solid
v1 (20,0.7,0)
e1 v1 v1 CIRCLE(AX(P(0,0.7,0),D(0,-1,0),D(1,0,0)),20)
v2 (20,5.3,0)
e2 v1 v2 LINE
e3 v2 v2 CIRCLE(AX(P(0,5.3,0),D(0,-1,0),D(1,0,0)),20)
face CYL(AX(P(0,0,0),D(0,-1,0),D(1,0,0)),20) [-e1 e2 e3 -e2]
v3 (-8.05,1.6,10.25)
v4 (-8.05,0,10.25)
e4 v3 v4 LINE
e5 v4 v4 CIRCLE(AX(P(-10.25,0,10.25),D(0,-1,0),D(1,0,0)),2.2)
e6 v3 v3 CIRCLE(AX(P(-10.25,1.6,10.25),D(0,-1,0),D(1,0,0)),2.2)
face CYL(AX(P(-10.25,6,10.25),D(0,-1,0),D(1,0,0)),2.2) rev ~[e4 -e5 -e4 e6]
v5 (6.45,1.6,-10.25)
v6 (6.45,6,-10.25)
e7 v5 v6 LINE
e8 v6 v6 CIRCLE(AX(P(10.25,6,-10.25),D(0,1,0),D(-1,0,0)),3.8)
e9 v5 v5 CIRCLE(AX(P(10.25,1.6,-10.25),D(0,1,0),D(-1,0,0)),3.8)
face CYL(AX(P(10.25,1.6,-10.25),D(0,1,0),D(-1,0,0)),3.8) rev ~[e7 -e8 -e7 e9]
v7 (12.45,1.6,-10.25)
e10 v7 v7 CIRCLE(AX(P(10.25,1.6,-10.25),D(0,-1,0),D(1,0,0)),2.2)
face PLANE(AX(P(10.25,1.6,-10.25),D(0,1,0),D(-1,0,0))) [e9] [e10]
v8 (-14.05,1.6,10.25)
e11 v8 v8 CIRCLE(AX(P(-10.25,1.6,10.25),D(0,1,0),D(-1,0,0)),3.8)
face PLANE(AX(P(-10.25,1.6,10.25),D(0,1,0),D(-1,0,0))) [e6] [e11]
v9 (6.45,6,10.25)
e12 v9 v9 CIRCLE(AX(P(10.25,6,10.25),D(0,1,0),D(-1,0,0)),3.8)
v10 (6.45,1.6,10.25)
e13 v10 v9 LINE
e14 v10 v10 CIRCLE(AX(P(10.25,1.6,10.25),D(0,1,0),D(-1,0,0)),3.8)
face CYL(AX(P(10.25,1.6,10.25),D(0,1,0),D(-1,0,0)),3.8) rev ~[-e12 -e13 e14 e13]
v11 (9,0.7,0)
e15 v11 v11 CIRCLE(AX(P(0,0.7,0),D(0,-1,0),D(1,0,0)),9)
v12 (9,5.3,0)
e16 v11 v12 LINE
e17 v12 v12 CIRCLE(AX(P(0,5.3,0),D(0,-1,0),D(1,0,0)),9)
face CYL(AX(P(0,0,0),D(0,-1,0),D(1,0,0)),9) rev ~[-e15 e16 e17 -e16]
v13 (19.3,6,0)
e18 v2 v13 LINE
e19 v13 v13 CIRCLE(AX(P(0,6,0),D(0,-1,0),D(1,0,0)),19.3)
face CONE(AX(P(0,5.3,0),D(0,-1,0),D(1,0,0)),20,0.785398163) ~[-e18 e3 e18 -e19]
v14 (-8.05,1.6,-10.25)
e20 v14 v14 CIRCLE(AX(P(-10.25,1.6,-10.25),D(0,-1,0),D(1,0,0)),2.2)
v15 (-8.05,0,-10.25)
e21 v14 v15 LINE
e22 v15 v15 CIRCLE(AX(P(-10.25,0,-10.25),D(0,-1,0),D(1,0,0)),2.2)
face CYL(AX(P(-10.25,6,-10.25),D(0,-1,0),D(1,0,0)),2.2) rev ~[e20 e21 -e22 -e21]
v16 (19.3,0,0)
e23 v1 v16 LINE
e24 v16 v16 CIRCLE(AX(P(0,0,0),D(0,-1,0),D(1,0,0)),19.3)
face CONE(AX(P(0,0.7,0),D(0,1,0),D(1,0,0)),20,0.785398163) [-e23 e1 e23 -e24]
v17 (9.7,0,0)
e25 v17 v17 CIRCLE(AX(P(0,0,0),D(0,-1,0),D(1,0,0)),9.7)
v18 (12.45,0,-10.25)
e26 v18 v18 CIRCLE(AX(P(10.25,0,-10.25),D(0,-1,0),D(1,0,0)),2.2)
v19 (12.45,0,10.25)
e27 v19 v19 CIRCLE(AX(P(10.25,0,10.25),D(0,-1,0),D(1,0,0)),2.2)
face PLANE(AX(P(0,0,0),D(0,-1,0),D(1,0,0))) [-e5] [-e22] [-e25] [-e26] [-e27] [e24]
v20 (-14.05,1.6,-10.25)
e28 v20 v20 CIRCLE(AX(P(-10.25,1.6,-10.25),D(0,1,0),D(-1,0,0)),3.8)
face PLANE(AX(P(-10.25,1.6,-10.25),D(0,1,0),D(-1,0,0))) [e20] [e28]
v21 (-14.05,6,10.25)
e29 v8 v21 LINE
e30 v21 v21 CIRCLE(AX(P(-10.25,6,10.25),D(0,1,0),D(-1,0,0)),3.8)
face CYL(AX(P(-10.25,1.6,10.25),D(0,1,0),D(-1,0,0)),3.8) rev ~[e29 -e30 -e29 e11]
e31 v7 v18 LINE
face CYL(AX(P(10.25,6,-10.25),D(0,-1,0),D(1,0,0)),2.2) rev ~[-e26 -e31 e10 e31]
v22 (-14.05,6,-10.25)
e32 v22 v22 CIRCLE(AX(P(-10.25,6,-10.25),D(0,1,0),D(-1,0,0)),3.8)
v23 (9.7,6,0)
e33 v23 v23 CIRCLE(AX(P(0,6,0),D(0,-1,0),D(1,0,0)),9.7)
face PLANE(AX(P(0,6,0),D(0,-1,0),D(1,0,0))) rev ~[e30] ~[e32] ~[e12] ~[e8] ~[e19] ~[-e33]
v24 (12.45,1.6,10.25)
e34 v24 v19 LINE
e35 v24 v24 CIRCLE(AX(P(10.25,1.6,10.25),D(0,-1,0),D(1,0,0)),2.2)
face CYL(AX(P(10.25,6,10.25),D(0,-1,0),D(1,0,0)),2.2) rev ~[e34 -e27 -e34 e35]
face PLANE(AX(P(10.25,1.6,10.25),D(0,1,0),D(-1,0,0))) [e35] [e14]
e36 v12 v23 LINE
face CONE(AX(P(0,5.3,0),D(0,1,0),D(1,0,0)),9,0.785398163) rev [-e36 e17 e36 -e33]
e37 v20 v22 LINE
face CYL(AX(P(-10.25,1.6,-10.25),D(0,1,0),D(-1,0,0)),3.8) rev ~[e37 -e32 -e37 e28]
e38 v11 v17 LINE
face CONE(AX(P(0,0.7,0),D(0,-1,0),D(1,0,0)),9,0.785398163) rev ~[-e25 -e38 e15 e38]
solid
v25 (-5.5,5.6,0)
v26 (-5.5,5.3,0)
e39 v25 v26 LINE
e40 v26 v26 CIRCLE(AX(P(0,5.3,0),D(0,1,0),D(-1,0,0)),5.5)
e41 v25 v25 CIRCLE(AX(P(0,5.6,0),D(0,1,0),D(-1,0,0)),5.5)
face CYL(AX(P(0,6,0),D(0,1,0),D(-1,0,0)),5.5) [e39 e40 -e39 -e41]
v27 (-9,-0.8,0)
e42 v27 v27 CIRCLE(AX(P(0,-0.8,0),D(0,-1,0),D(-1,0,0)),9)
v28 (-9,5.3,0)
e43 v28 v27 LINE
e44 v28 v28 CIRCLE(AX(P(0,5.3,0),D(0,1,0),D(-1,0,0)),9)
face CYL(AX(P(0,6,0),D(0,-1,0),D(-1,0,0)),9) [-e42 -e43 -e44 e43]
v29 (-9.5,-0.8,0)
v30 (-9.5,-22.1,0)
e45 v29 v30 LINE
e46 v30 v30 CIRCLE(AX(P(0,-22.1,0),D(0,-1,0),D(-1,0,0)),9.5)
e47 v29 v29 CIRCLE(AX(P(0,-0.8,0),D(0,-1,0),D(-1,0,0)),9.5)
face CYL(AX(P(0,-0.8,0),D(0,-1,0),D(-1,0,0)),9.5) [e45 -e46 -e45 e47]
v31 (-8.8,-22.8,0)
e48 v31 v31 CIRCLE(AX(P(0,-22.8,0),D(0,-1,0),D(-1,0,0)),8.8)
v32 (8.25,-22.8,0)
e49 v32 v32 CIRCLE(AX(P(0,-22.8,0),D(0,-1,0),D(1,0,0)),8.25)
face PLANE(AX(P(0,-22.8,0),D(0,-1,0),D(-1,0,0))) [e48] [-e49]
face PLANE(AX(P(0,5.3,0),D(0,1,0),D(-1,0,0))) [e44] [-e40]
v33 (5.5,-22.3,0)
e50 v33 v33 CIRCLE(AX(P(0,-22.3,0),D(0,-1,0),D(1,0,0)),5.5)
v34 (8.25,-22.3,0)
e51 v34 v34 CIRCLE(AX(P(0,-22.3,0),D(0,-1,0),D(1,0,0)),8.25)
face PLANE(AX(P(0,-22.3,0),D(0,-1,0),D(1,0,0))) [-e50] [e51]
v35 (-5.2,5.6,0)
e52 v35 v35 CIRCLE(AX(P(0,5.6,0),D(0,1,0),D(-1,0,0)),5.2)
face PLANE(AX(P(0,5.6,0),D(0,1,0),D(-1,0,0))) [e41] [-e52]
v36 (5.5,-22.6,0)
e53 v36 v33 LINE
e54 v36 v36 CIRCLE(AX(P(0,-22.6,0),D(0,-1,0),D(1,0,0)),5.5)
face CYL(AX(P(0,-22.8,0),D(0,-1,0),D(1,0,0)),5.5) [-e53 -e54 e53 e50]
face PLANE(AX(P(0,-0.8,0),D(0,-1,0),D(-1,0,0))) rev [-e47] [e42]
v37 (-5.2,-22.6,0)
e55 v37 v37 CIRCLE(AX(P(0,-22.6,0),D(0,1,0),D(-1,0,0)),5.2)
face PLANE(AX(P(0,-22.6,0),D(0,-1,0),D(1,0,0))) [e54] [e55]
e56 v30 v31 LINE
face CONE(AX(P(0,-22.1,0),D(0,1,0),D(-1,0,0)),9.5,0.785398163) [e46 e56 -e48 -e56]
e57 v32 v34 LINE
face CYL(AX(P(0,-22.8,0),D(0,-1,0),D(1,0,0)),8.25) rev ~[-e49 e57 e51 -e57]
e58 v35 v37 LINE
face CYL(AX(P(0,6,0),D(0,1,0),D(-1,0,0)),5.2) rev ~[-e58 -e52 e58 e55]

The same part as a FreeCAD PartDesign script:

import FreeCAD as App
import Part
import Sketcher


def edges_at(feature, points):
    """Names of the edges that pass closest to the given points."""
    edges = feature.Shape.Edges
    near = lambda p: min(range(len(edges)), key=lambda i: edges[i].distToShape(Part.Vertex(*p))[0])
    return sorted({f"Edge{near(p) + 1}" for p in points})

doc = App.newDocument("Part")
body = doc.addObject("PartDesign::Body", "Body")

sketch1 = body.newObject("Sketcher::SketchObject", "Sketch")
sketch1.AttachmentSupport = (doc.getObject("XZ_Plane"), [""])
sketch1.MapMode = "FlatFace"
sketch1.addGeometry([
    Part.Circle(App.Vector(0, 0, 0), App.Vector(0, 0, 1), 20),
    Part.Circle(App.Vector(0, 0, 0), App.Vector(0, 0, 1), 9),
], False)
sketch1.addConstraint([
    Sketcher.Constraint("Coincident", 0, 3, -1, 1),
    Sketcher.Constraint("Coincident", 1, 3, -1, 1),
    Sketcher.Constraint("Diameter", 0, 40.0),
    Sketcher.Constraint("Diameter", 1, 18.0),
])
pad1 = body.newObject("PartDesign::Pad", "Pad")
pad1.Profile = sketch1
pad1.Length = 6
pad1.Reversed = True
doc.recompute()

chamfer = body.newObject("PartDesign::Chamfer", "Chamfer")
chamfer.Base = (pad1, ["Edge1"])
chamfer.UseAllEdges = True
chamfer.Size = 0.7

sketch2 = body.newObject("Sketcher::SketchObject", "Sketch001")
sketch2.AttachmentSupport = (doc.getObject("XZ_Plane"), [""])
sketch2.MapMode = "FlatFace"
sketch2.AttachmentOffset = App.Placement(App.Vector(0, 0, -6), App.Rotation())
sketch2.addGeometry([
    Part.Circle(App.Vector(10.2, 10.2, 0), App.Vector(0, 0, 1), 2.2),
    Part.Circle(App.Vector(-10.2, 10.2, 0), App.Vector(0, 0, 1), 2.2),
    Part.Circle(App.Vector(-10.2, -10.2, 0), App.Vector(0, 0, 1), 2.2),
    Part.Circle(App.Vector(10.2, -10.2, 0), App.Vector(0, 0, 1), 2.2),
], False)
sketch2.addConstraint([
    Sketcher.Constraint("Equal", 0, 1),
    Sketcher.Constraint("Equal", 1, 2),
    Sketcher.Constraint("Equal", 2, 3),
    Sketcher.Constraint("Symmetric", 0, 3, 2, 3, -1, 1),
    Sketcher.Constraint("Symmetric", 1, 3, 3, 3, -1, 1),
    Sketcher.Constraint("Symmetric", 0, 3, 1, 3, -2),
    Sketcher.Constraint("Diameter", 0, 4.4),
    Sketcher.Constraint("DistanceX", 1, 3, 0, 3, 20.5),
    Sketcher.Constraint("DistanceY", 2, 3, 1, 3, 20.5),
])
doc.recompute()
hole = body.newObject("PartDesign::Hole", "Hole")
hole.Profile = sketch2
hole.ThreadType = "None"
hole.Diameter = 4.4
hole.DepthType = "ThroughAll"
hole.HoleCutType = "Counterbore"
hole.HoleCutDiameter = 7.6
hole.HoleCutDepth = 4.4
hole.Reversed = True
body2 = doc.addObject("PartDesign::Body", "Body001")

sketch3 = body2.newObject("Sketcher::SketchObject", "Sketch002")
sketch3.AttachmentSupport = (doc.getObject("XY_Plane001"), [""])
sketch3.MapMode = "FlatFace"
sketch3.addGeometry([
    Part.LineSegment(App.Vector(0, -22.8, 0), App.Vector(0, 6, 0)),
    Part.LineSegment(App.Vector(0, 6, 0), App.Vector(-9, 6, 0)),
    Part.LineSegment(App.Vector(-9, 6, 0), App.Vector(-9, -0.8, 0)),
    Part.LineSegment(App.Vector(-9, -0.8, 0), App.Vector(-9.5, -0.8, 0)),
    Part.LineSegment(App.Vector(-9.5, -0.8, 0), App.Vector(-9.5, -22.8, 0)),
    Part.LineSegment(App.Vector(-9.5, -22.8, 0), App.Vector(0, -22.8, 0)),
], False)
sketch3.addConstraint([
    Sketcher.Constraint("Coincident", 0, 2, 1, 1),
    Sketcher.Constraint("Coincident", 1, 2, 2, 1),
    Sketcher.Constraint("Coincident", 2, 2, 3, 1),
    Sketcher.Constraint("Coincident", 3, 2, 4, 1),
    Sketcher.Constraint("Coincident", 4, 2, 5, 1),
    Sketcher.Constraint("Coincident", 5, 2, 0, 1),
    Sketcher.Constraint("Vertical", 0),
    Sketcher.Constraint("Horizontal", 1),
    Sketcher.Constraint("Vertical", 2),
    Sketcher.Constraint("Horizontal", 3),
    Sketcher.Constraint("Vertical", 4),
    Sketcher.Constraint("Horizontal", 5),
    Sketcher.Constraint("PointOnObject", 0, 2, -2),
    Sketcher.Constraint("DistanceX", 1, 2, 1, 1, 9.0),
    Sketcher.Constraint("DistanceY", 4, 2, 4, 1, 22.0),
    Sketcher.Constraint("DistanceX", 3, 2, 3, 1, 0.5),
    Sketcher.Constraint("DistanceY", 0, 1, 0, 2, 28.8),
    Sketcher.Constraint("DistanceY", -1, 1, 0, 2, 6.0),
])
revolution = body2.newObject("PartDesign::Revolution", "Revolution")
revolution.Profile = sketch3
revolution.ReferenceAxis = (sketch3, ["V_Axis"])
revolution.Angle = 360
doc.recompute()

chamfer2 = body2.newObject("PartDesign::Chamfer", "Chamfer001")
chamfer2.Base = (revolution, edges_at(revolution, [(9.5, -22.8, 0)]))
chamfer2.Size = 0.7

sketch4 = body2.newObject("Sketcher::SketchObject", "Sketch003")
sketch4.AttachmentSupport = (doc.getObject("XZ_Plane001"), [""])
sketch4.MapMode = "FlatFace"
sketch4.AttachmentOffset = App.Placement(App.Vector(0, 0, -6), App.Rotation())
sketch4.addGeometry([
    Part.Circle(App.Vector(0, 0, 0), App.Vector(0, 0, 1), 9),
    Part.Circle(App.Vector(0, 0, 0), App.Vector(0, 0, 1), 6),
], False)
sketch4.addConstraint([
    Sketcher.Constraint("Coincident", 0, 3, -1, 1),
    Sketcher.Constraint("Coincident", 1, 3, -1, 1),
    Sketcher.Constraint("Diameter", 0, 18.0),
    Sketcher.Constraint("Diameter", 1, 11.0),
])
pocket1 = body2.newObject("PartDesign::Pocket", "Pocket")
pocket1.Profile = sketch4
pocket1.Length = 0.7
pocket1.Reversed = True

sketch5 = body2.newObject("Sketcher::SketchObject", "Sketch004")
sketch5.AttachmentSupport = (doc.getObject("XZ_Plane001"), [""])
sketch5.MapMode = "FlatFace"
sketch5.AttachmentOffset = App.Placement(App.Vector(0, 0, -6), App.Rotation())
sketch5.addGeometry([
    Part.Circle(App.Vector(0, 0, 0), App.Vector(0, 0, 1), 6),
    Part.Circle(App.Vector(0, 0, 0), App.Vector(0, 0, 1), 5),
], False)
sketch5.addConstraint([
    Sketcher.Constraint("Coincident", 0, 3, -1, 1),
    Sketcher.Constraint("Coincident", 1, 3, -1, 1),
    Sketcher.Constraint("Diameter", 0, 11.0),
    Sketcher.Constraint("Diameter", 1, 10.4),
])
pocket2 = body2.newObject("PartDesign::Pocket", "Pocket001")
pocket2.Profile = sketch5
pocket2.Length = 0.4
pocket2.Reversed = True

sketch6 = body2.newObject("Sketcher::SketchObject", "Sketch005")
sketch6.AttachmentSupport = (doc.getObject("XZ_Plane001"), [""])
sketch6.MapMode = "FlatFace"
sketch6.AttachmentOffset = App.Placement(App.Vector(0, 0, -6), App.Rotation())
sketch6.addGeometry(Part.Circle(App.Vector(0, 0, 0), App.Vector(0, 0, 1), 5), False)
sketch6.addConstraint([
    Sketcher.Constraint("Coincident", 0, 3, -1, 1),
    Sketcher.Constraint("Diameter", 0, 10.4),
])
pocket3 = body2.newObject("PartDesign::Pocket", "Pocket002")
pocket3.Profile = sketch6
pocket3.Type = "ThroughAll"
pocket3.Reversed = True

sketch7 = body2.newObject("Sketcher::SketchObject", "Sketch006")
sketch7.AttachmentSupport = (doc.getObject("XZ_Plane001"), [""])
sketch7.MapMode = "FlatFace"
sketch7.AttachmentOffset = App.Placement(App.Vector(0, 0, 22.8), App.Rotation())
sketch7.addGeometry([
    Part.Circle(App.Vector(0, 0, 0), App.Vector(0, 0, 1), 8),
    Part.Circle(App.Vector(0, 0, 0), App.Vector(0, 0, 1), 6),
], False)
sketch7.addConstraint([
    Sketcher.Constraint("Coincident", 0, 3, -1, 1),
    Sketcher.Constraint("Coincident", 1, 3, -1, 1),
    Sketcher.Constraint("Diameter", 1, 11.0),
    Sketcher.Constraint("Diameter", 0, 16.5),
])
pocket4 = body2.newObject("PartDesign::Pocket", "Pocket003")
pocket4.Profile = sketch7
pocket4.Length = 0.5

sketch8 = body2.newObject("Sketcher::SketchObject", "Sketch007")
sketch8.AttachmentSupport = (doc.getObject("XZ_Plane001"), [""])
sketch8.MapMode = "FlatFace"
sketch8.AttachmentOffset = App.Placement(App.Vector(0, 0, 22.8), App.Rotation())
sketch8.addGeometry([
    Part.Circle(App.Vector(0, 0, 0), App.Vector(0, 0, 1), 6),
    Part.Circle(App.Vector(0, 0, 0), App.Vector(0, 0, 1), 5),
], False)
sketch8.addConstraint([
    Sketcher.Constraint("Coincident", 0, 3, -1, 1),
    Sketcher.Constraint("Coincident", 1, 3, -1, 1),
    Sketcher.Constraint("Diameter", 0, 11.0),
    Sketcher.Constraint("Diameter", 1, 10.4),
])
pocket5 = body2.newObject("PartDesign::Pocket", "Pocket004")
pocket5.Profile = sketch8
pocket5.Length = 0.2

doc.recompute()
